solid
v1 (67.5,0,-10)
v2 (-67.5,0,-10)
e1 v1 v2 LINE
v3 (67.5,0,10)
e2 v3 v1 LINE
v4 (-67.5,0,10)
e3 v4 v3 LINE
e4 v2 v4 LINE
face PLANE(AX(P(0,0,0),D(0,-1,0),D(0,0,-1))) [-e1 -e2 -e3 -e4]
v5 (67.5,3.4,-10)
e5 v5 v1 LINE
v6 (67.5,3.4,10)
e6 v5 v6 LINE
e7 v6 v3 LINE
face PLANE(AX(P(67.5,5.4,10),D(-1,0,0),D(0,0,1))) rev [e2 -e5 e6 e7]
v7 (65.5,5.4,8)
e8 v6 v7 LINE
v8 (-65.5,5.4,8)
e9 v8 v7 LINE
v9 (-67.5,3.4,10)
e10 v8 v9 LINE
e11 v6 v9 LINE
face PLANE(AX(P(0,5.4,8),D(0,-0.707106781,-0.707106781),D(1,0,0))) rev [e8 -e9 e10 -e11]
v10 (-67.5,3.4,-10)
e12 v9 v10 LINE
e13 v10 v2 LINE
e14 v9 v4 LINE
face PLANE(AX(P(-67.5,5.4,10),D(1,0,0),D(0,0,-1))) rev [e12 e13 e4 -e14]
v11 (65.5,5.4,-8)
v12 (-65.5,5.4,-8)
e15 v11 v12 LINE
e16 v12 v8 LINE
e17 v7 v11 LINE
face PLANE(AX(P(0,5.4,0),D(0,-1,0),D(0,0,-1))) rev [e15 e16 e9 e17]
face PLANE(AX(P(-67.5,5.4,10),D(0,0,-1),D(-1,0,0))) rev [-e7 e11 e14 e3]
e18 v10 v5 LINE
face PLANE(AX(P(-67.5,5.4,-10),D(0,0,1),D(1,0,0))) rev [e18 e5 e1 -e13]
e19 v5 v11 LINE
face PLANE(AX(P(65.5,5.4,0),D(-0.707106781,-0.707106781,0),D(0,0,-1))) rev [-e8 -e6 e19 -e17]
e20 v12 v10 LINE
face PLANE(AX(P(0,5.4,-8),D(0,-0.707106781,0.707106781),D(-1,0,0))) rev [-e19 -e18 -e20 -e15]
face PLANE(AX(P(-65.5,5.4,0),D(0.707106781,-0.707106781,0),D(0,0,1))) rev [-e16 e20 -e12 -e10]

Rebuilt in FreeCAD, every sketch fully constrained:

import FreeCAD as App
import Part
import Sketcher


def edges_at(feature, points):
    """Names of the edges that pass closest to the given points."""
    edges = feature.Shape.Edges
    near = lambda p: min(range(len(edges)), key=lambda i: edges[i].distToShape(Part.Vertex(*p))[0])
    return sorted({f"Edge{near(p) + 1}" for p in points})

doc = App.newDocument("Part")
params = doc.addObject("Spreadsheet::Sheet", "Params")
for row, (alias, value) in enumerate([
    ("sketch1_width", "135 mm"),
    ("sketch1_height", "20 mm"),
    ("pad1_length", "5.4 mm"),
    ("chamfer_size", "2 mm"),
], start=1):
    params.set(f"A{row}", alias)
    params.set(f"B{row}", "=" + value)
    params.setAlias(f"B{row}", alias)

body = doc.addObject("PartDesign::Body", "Body")

# Sketch on XZ plane
sketch1 = body.newObject("Sketcher::SketchObject", "Sketch")
sketch1.AttachmentSupport = (doc.getObject("XZ_Plane"), [""])
sketch1.MapMode = "FlatFace"
sketch1.addGeometry([
    Part.LineSegment(App.Vector(-67.5, -10, 0), App.Vector(-67.5, 10, 0)),
    Part.LineSegment(App.Vector(-67.5, 10, 0), App.Vector(67.5, 10, 0)),
    Part.LineSegment(App.Vector(67.5, 10, 0), App.Vector(67.5, -10, 0)),
    Part.LineSegment(App.Vector(67.5, -10, 0), App.Vector(-67.5, -10, 0)),
], False)
sketch1.addConstraint([
    Sketcher.Constraint("Coincident", 0, 2, 1, 1),
    Sketcher.Constraint("Coincident", 1, 2, 2, 1),
    Sketcher.Constraint("Coincident", 2, 2, 3, 1),
    Sketcher.Constraint("Coincident", 3, 2, 0, 1),
    Sketcher.Constraint("Vertical", 0),
    Sketcher.Constraint("Horizontal", 1),
    Sketcher.Constraint("Vertical", 2),
    Sketcher.Constraint("Horizontal", 3),
    Sketcher.Constraint("Symmetric", 0, 2, 2, 2, -1, 1),
    Sketcher.Constraint("DistanceX", 1, 1, 1, 2, 135.0),
    Sketcher.Constraint("DistanceY", 0, 1, 0, 2, 20.0),
])
sketch1.setExpression("Constraints[9]", "Params.sketch1_width")
sketch1.setExpression("Constraints[10]", "Params.sketch1_height")
pad1 = body.newObject("PartDesign::Pad", "Pad")
pad1.Profile = sketch1
pad1.setExpression("Length", "Params.pad1_length")
pad1.Reversed = True
doc.recompute()

chamfer = body.newObject("PartDesign::Chamfer", "Chamfer")
chamfer.Base = (pad1, edges_at(pad1, [
    (-67.5, 5.4, 0),
    (0, 5.4, 10),
    (67.5, 5.4, 0),
    (0, 5.4, -10),
]))
chamfer.setExpression("Size", "Params.chamfer_size")

doc.recompute()
